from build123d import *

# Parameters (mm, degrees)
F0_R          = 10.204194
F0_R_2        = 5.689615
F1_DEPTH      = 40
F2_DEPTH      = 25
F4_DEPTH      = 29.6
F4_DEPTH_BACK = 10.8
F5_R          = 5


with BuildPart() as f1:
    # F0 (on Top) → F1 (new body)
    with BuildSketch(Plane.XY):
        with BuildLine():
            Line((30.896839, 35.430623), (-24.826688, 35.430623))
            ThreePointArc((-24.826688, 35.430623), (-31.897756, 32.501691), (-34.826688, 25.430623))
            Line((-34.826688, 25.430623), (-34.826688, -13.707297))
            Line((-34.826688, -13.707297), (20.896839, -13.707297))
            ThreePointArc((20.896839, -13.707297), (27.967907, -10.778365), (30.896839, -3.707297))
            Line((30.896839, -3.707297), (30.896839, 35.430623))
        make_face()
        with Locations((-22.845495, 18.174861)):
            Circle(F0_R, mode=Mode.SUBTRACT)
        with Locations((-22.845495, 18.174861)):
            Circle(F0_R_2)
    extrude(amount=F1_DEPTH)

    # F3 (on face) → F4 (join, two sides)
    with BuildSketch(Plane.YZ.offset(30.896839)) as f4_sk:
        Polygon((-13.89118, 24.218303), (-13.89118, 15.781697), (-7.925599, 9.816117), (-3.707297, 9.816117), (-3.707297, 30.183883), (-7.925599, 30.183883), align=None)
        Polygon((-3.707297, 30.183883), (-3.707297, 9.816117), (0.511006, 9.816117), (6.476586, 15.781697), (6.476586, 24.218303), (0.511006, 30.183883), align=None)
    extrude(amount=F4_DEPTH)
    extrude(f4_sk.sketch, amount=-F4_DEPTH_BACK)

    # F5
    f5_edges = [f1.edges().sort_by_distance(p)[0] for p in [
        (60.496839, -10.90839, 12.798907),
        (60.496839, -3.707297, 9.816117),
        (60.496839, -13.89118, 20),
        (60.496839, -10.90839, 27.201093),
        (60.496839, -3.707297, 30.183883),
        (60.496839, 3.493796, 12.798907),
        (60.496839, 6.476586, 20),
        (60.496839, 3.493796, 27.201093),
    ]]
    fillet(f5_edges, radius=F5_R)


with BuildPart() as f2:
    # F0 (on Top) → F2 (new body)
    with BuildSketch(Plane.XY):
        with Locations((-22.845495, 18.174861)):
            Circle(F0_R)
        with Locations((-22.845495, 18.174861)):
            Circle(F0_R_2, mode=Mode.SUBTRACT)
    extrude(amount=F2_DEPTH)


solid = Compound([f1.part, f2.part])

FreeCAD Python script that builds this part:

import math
import FreeCAD as App
import Part
import Sketcher

V = App.Vector
Q = App.Units.Quantity


def edges_at(feature, points):
    """Names of the edges that pass closest to the given points."""
    edges = feature.Shape.Edges
    near = lambda p: min(range(len(edges)), key=lambda i: edges[i].distToShape(Part.Vertex(*p))[0])
    return sorted({f"Edge{near(p) + 1}" for p in points})

doc = App.newDocument("Part")
params = doc.addObject("Spreadsheet::Sheet", "Params")
for row, (alias, value) in enumerate([
    ("sketch1_radius", "9.999999 mm"),
    ("pad1_length", "40 mm"),
    ("pad2_length", "29.6 mm"),
    ("pad2_length2", "10.8 mm"),
    ("fillet_radius", "5 mm"),
    ("pad3_length", "25 mm"),
], start=1):
    params.set(f"A{row}", alias)
    params.set(f"B{row}", "=" + value)
    params.setAlias(f"B{row}", alias)

body = doc.addObject("PartDesign::Body", "Body")
body.AllowCompound = True

# Sketch on XY plane
sketch1 = body.newObject("Sketcher::SketchObject", "Sketch")
sketch1.AttachmentSupport = (doc.getObject("XY_Plane"), [""])
sketch1.MapMode = "FlatFace"
sketch1.addGeometry(Part.LineSegment(V(31, 35, 0), V(-25, 35, 0)), False)
sketch1.addGeometry(Part.ArcOfCircle(Part.Circle(V(-25, 25, 0), V(0, 0, 1), 10), math.radians(90), math.radians(180)), False)
sketch1.addGeometry(Part.LineSegment(V(-35, 25, 0), V(-35, -14, 0)), False)
sketch1.addGeometry(Part.LineSegment(V(-35, -14, 0), V(21, -14, 0)), False)
sketch1.addGeometry(Part.ArcOfCircle(Part.Circle(V(21, -4, 0), V(0, 0, 1), 10), math.radians(-90), math.radians(0)), False)
sketch1.addGeometry(Part.LineSegment(V(31, -4, 0), V(31, 35, 0)), False)
sketch1.addGeometry(Part.Circle(V(-23, 18, 0), V(0, 0, 1), 10), False)
sketch1.addGeometry(Part.Circle(V(-23, 18, 0), V(0, 0, 1), 6), False)
sketch1.addConstraint(Sketcher.Constraint("Tangent", 0, 2, 1, 1))
sketch1.addConstraint(Sketcher.Constraint("Tangent", 1, 2, 2, 1))
sketch1.addConstraint(Sketcher.Constraint("Coincident", 2, 2, 3, 1))
sketch1.addConstraint(Sketcher.Constraint("Tangent", 3, 2, 4, 1))
sketch1.addConstraint(Sketcher.Constraint("Tangent", 4, 2, 5, 1))
sketch1.addConstraint(Sketcher.Constraint("Coincident", 5, 2, 0, 1))
sketch1.addConstraint(Sketcher.Constraint("Horizontal", 0))
sketch1.addConstraint(Sketcher.Constraint("Vertical", 2))
sketch1.addConstraint(Sketcher.Constraint("Horizontal", 3))
sketch1.addConstraint(Sketcher.Constraint("Vertical", 5))
sketch1.addConstraint(Sketcher.Constraint("Coincident", 7, 3, 6, 3))
sketch1.addConstraint(Sketcher.Constraint("Equal", 1, 4))
sketch1.addConstraint(Sketcher.Constraint("Radius", 1, Q("9.999999 mm")))
sketch1.addConstraint(Sketcher.Constraint("Diameter", 7, Q("11.37923 mm")))
sketch1.addConstraint(Sketcher.Constraint("Diameter", 6, Q("20.408388 mm")))
sketch1.addConstraint(Sketcher.Constraint("DistanceY", 2, 2, 2, 1, Q("39.13792 mm")))
sketch1.addConstraint(Sketcher.Constraint("DistanceX", 0, 2, 0, 1, Q("55.723527 mm")))
sketch1.addConstraint(Sketcher.Constraint("DistanceX", 1, 3, -1, 1, Q("24.826689 mm")))
sketch1.addConstraint(Sketcher.Constraint("DistanceY", -1, 1, 6, 3, Q("18.174861 mm")))
sketch1.addConstraint(Sketcher.Constraint("DistanceY", 4, 3, 6, 3, Q("21.882159 mm")))
sketch1.addConstraint(Sketcher.Constraint("DistanceX", 6, 3, -1, 1, Q("22.845495 mm")))
sketch1.setExpression("Constraints[12]", "Params.sketch1_radius")
pad1 = body.newObject("PartDesign::Pad", "Pad")
pad1.Profile = sketch1
pad1.setExpression("Length", "Params.pad1_length")

# Sketch on YZ plane
sketch2 = body.newObject("Sketcher::SketchObject", "Sketch001")
sketch2.AttachmentSupport = (doc.getObject("YZ_Plane"), [""])
sketch2.MapMode = "FlatFace"
sketch2.AttachmentOffset = App.Placement(V(0, 0, 30.896839), App.Rotation())
sketch2.addGeometry(Part.LineSegment(V(-14, 24, 0), V(-14, 16, 0)), False)
sketch2.addGeometry(Part.LineSegment(V(-14, 16, 0), V(-8, 10, 0)), False)
sketch2.addGeometry(Part.LineSegment(V(-8, 10, 0), V(1, 10, 0)), False)
sketch2.addGeometry(Part.LineSegment(V(1, 10, 0), V(6, 16, 0)), False)
sketch2.addGeometry(Part.LineSegment(V(6, 16, 0), V(6, 24, 0)), False)
sketch2.addGeometry(Part.LineSegment(V(6, 24, 0), V(1, 30, 0)), False)
sketch2.addGeometry(Part.LineSegment(V(1, 30, 0), V(-8, 30, 0)), False)
sketch2.addGeometry(Part.LineSegment(V(-8, 30, 0), V(-14, 24, 0)), False)
sketch2.addConstraint(Sketcher.Constraint("Coincident", 0, 2, 1, 1))
sketch2.addConstraint(Sketcher.Constraint("Coincident", 1, 2, 2, 1))
sketch2.addConstraint(Sketcher.Constraint("Coincident", 2, 2, 3, 1))
sketch2.addConstraint(Sketcher.Constraint("Coincident", 3, 2, 4, 1))
sketch2.addConstraint(Sketcher.Constraint("Coincident", 4, 2, 5, 1))
sketch2.addConstraint(Sketcher.Constraint("Coincident", 5, 2, 6, 1))
sketch2.addConstraint(Sketcher.Constraint("Coincident", 6, 2, 7, 1))
sketch2.addConstraint(Sketcher.Constraint("Coincident", 7, 2, 0, 1))
sketch2.addConstraint(Sketcher.Constraint("Vertical", 0))
sketch2.addConstraint(Sketcher.Constraint("Horizontal", 2))
sketch2.addConstraint(Sketcher.Constraint("Vertical", 4))
sketch2.addConstraint(Sketcher.Constraint("Horizontal", 6))
sketch2.addConstraint(Sketcher.Constraint("Perpendicular", 1, 3))
sketch2.addConstraint(Sketcher.Constraint("Perpendicular", 3, 5))
sketch2.addConstraint(Sketcher.Constraint("Perpendicular", 5, 7))
sketch2.addConstraint(Sketcher.Constraint("Horizontal", 0, 2, 3, 2))
sketch2.addConstraint(Sketcher.Constraint("Horizontal", 4, 2, 7, 2))
sketch2.addConstraint(Sketcher.Constraint("Vertical", 2, 2, 5, 2))
sketch2.addConstraint(Sketcher.Constraint("Vertical", 1, 2, 6, 2))
sketch2.addConstraint(Sketcher.Constraint("Equal", 6, 0))
sketch2.addConstraint(Sketcher.Constraint("DistanceX", 1, 2, -1, 1, Q("7.925599 mm")))
sketch2.addConstraint(Sketcher.Constraint("DistanceX", 2, 1, 2, 2, Q("8.436605 mm")))
sketch2.addConstraint(Sketcher.Constraint("DistanceX", 0, 2, -1, 1, Q("13.89118 mm")))
sketch2.addConstraint(Sketcher.Constraint("DistanceY", -1, 1, 0, 2, Q("15.781697 mm")))
pad2 = body.newObject("PartDesign::Pad", "Pad001")
pad2.Profile = sketch2
pad2.Type = "TwoLengths"
pad2.setExpression("Length", "Params.pad2_length")
pad2.setExpression("Length2", "Params.pad2_length2")
doc.recompute()

fillet = body.newObject("PartDesign::Fillet", "Fillet")
fillet.Base = (pad2, edges_at(pad2, [
    (60.497, -10.908, 12.799),
    (60.497, -3.707, 9.816),
    (60.497, -13.891, 20),
    (60.497, -10.908, 27.201),
    (60.497, -3.707, 30.184),
    (60.497, 3.494, 12.799),
    (60.497, 6.477, 20),
    (60.497, 3.494, 27.201),
]))
fillet.setExpression("Radius", "Params.fillet_radius")
body2 = doc.addObject("PartDesign::Body", "Body001")

# Sketch on XY plane
sketch3 = body2.newObject("Sketcher::SketchObject", "Sketch002")
sketch3.AttachmentSupport = (doc.getObject("XY_Plane001"), [""])
sketch3.MapMode = "FlatFace"
sketch3.addGeometry(Part.Circle(V(-23, 18, 0), V(0, 0, 1), 10), False)
sketch3.addGeometry(Part.Circle(V(-23, 18, 0), V(0, 0, 1), 6), False)
sketch3.addConstraint(Sketcher.Constraint("Coincident", 1, 3, 0, 3))
sketch3.addConstraint(Sketcher.Constraint("Diameter", 1, Q("11.37923 mm")))
sketch3.addConstraint(Sketcher.Constraint("Diameter", 0, Q("20.408388 mm")))
sketch3.addConstraint(Sketcher.Constraint("DistanceY", -1, 1, 0, 3, Q("18.174861 mm")))
sketch3.addConstraint(Sketcher.Constraint("DistanceX", 0, 3, -1, 1, Q("22.845495 mm")))
pad3 = body2.newObject("PartDesign::Pad", "Pad002")
pad3.Profile = sketch3
pad3.setExpression("Length", "Params.pad3_length")

doc.recompute()
